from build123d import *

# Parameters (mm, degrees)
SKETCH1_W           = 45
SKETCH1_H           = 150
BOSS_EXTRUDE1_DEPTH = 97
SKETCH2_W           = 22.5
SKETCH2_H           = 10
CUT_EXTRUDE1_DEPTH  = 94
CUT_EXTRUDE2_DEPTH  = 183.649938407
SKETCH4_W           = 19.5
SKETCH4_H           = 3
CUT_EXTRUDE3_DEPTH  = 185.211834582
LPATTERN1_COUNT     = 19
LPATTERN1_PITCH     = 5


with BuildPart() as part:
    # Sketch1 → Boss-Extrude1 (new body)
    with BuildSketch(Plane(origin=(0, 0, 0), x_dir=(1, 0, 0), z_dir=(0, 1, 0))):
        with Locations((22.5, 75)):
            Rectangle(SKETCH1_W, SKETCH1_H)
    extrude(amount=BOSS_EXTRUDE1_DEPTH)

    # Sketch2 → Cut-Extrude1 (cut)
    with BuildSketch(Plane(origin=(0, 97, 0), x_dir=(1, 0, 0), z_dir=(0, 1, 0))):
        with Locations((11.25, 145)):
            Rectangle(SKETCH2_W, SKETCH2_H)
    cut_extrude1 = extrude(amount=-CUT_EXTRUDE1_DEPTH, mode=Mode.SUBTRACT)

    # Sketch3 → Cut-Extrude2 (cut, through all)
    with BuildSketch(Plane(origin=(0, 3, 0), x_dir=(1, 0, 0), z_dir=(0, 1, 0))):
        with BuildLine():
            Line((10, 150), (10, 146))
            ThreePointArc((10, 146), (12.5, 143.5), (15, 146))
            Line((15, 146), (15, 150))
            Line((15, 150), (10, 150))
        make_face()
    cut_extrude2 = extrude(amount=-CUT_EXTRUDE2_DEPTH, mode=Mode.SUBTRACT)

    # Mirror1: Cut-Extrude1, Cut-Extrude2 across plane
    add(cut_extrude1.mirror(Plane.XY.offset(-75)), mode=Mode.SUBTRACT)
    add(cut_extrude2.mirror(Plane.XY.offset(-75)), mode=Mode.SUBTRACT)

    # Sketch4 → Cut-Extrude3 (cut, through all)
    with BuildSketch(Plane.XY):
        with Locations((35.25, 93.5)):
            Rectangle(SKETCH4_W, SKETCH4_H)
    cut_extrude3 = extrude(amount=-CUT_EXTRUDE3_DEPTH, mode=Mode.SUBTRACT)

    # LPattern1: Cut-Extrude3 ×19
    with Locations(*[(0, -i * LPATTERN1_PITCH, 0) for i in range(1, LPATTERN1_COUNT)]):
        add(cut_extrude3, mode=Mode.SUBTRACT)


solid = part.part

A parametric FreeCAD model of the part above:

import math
import FreeCAD as App
import Part
import Sketcher
from FreeCAD import Vector
Q = App.Units.Quantity

doc = App.newDocument("Part")
body = doc.addObject("PartDesign::Body", "Body")

# Sketch on XZ plane
sketch1 = doc.addObject("Sketcher::SketchObject", "Sketch")
body.addObject(sketch1)
sketch1.AttachmentSupport = (doc.XZ_Plane, [""])
sketch1.MapMode = "FlatFace"
sketch1.addGeometry([
    Part.LineSegment(Vector(0, -150, 0), Vector(0, 0, 0)),
    Part.LineSegment(Vector(0, 0, 0), Vector(45, 0, 0)),
    Part.LineSegment(Vector(45, 0, 0), Vector(45, -150, 0)),
    Part.LineSegment(Vector(45, -150, 0), Vector(0, -150, 0)),
], False)
sketch1.addConstraint([
    Sketcher.Constraint("Coincident", 0, 2, 1, 1),
    Sketcher.Constraint("Coincident", 1, 2, 2, 1),
    Sketcher.Constraint("Coincident", 2, 2, 3, 1),
    Sketcher.Constraint("Coincident", 3, 2, 0, 1),
    Sketcher.Constraint("Vertical", 0),
    Sketcher.Constraint("Horizontal", 1),
    Sketcher.Constraint("Vertical", 2),
    Sketcher.Constraint("Horizontal", 3),
    Sketcher.Constraint("Coincident", 0, 2, -1, 1),
    Sketcher.Constraint("DistanceX", 1, 1, 1, 2, Q("45 mm")),
    Sketcher.Constraint("DistanceY", 0, 1, 0, 2, Q("150 mm")),
])
pad1 = doc.addObject("PartDesign::Pad", "Pad")
body.addObject(pad1)
pad1.Profile = sketch1
pad1.Length = 97
pad1.Reversed = True

# Sketch on XZ plane
sketch2 = doc.addObject("Sketcher::SketchObject", "Sketch001")
body.addObject(sketch2)
sketch2.AttachmentSupport = (doc.XZ_Plane, [""])
sketch2.MapMode = "FlatFace"
sketch2.AttachmentOffset = App.Placement(Vector(0, 0, -97), App.Rotation())
sketch2.addGeometry([
    Part.LineSegment(Vector(0, -150, 0), Vector(0, -140, 0)),
    Part.LineSegment(Vector(0, -140, 0), Vector(22, -140, 0)),
    Part.LineSegment(Vector(22, -140, 0), Vector(22, -150, 0)),
    Part.LineSegment(Vector(22, -150, 0), Vector(0, -150, 0)),
], False)
sketch2.addConstraint([
    Sketcher.Constraint("Coincident", 0, 2, 1, 1),
    Sketcher.Constraint("Coincident", 1, 2, 2, 1),
    Sketcher.Constraint("Coincident", 2, 2, 3, 1),
    Sketcher.Constraint("Coincident", 3, 2, 0, 1),
    Sketcher.Constraint("Vertical", 0),
    Sketcher.Constraint("Horizontal", 1),
    Sketcher.Constraint("Vertical", 2),
    Sketcher.Constraint("Horizontal", 3),
    Sketcher.Constraint("PointOnObject", 0, 2, -2),
    Sketcher.Constraint("DistanceY", 0, 1, 0, 2, Q("10 mm")),
    Sketcher.Constraint("DistanceX", 1, 1, 1, 2, Q("22.5 mm")),
    Sketcher.Constraint("DistanceY", 0, 2, -1, 1, Q("140 mm")),
])
pocket1 = doc.addObject("PartDesign::Pocket", "Pocket")
body.addObject(pocket1)
pocket1.Profile = sketch2
pocket1.Length = 94
pocket1.Reversed = True

# Sketch on XZ plane
sketch3 = doc.addObject("Sketcher::SketchObject", "Sketch002")
body.addObject(sketch3)
sketch3.AttachmentSupport = (doc.XZ_Plane, [""])
sketch3.MapMode = "FlatFace"
sketch3.AttachmentOffset = App.Placement(Vector(0, 0, -3), App.Rotation())
sketch3.addGeometry([
    Part.LineSegment(Vector(10, -150, 0), Vector(10, -146, 0)),
    Part.ArcOfCircle(Part.Circle(Vector(12.5, -146, 0), Vector(0, 0, 1), 2.5), math.radians(0), math.radians(180)),
    Part.LineSegment(Vector(15, -146, 0), Vector(15, -150, 0)),
    Part.LineSegment(Vector(15, -150, 0), Vector(10, -150, 0)),
], False)
sketch3.addConstraint([
    Sketcher.Constraint("Tangent", 0, 2, 1, 2),
    Sketcher.Constraint("Tangent", 1, 1, 2, 1),
    Sketcher.Constraint("Coincident", 2, 2, 3, 1),
    Sketcher.Constraint("Coincident", 3, 2, 0, 1),
    Sketcher.Constraint("Vertical", 0),
    Sketcher.Constraint("Vertical", 2),
    Sketcher.Constraint("Horizontal", 3),
    Sketcher.Constraint("Radius", 1, Q("2.5 mm")),
    Sketcher.Constraint("DistanceY", 0, 1, 0, 2, Q("4 mm")),
    Sketcher.Constraint("DistanceY", 1, 3, -1, 1, Q("146 mm")),
    Sketcher.Constraint("DistanceX", -1, 1, 0, 2, Q("10 mm")),
])
pocket2 = doc.addObject("PartDesign::Pocket", "Pocket001")
body.addObject(pocket2)
pocket2.Profile = sketch3
pocket2.Type = "ThroughAll"
pocket2.Reversed = True
doc.recompute()

datumplane = doc.addObject("PartDesign::Plane", "DatumPlane")
body.addObject(datumplane)
datumplane.AttachmentSupport = (doc.XY_Plane, [""])
datumplane.MapMode = "FlatFace"
datumplane.AttachmentOffset = App.Placement(Vector(0, 0, -75), App.Rotation())
mirrored = doc.addObject("PartDesign::Mirrored", "Mirrored")
body.addObject(mirrored)
mirrored.Originals = [pocket1, pocket2]
mirrored.MirrorPlane = (datumplane, [""])
body.Tip = mirrored

# Sketch on XY plane
sketch4 = doc.addObject("Sketcher::SketchObject", "Sketch003")
body.addObject(sketch4)
sketch4.AttachmentSupport = (doc.XY_Plane, [""])
sketch4.MapMode = "FlatFace"
sketch4.addGeometry([
    Part.LineSegment(Vector(25.5, 95, 0), Vector(25.5, 92, 0)),
    Part.LineSegment(Vector(25.5, 92, 0), Vector(45, 92, 0)),
    Part.LineSegment(Vector(45, 92, 0), Vector(45, 95, 0)),
    Part.LineSegment(Vector(45, 95, 0), Vector(25.5, 95, 0)),
], False)
sketch4.addConstraint([
    Sketcher.Constraint("Coincident", 0, 2, 1, 1),
    Sketcher.Constraint("Coincident", 1, 2, 2, 1),
    Sketcher.Constraint("Coincident", 2, 2, 3, 1),
    Sketcher.Constraint("Coincident", 3, 2, 0, 1),
    Sketcher.Constraint("Vertical", 0),
    Sketcher.Constraint("Horizontal", 1),
    Sketcher.Constraint("Vertical", 2),
    Sketcher.Constraint("Horizontal", 3),
    Sketcher.Constraint("DistanceY", 0, 2, 0, 1, Q("3 mm")),
    Sketcher.Constraint("DistanceX", 1, 1, 1, 2, Q("19.5 mm")),
    Sketcher.Constraint("DistanceY", -1, 1, 0, 2, Q("92 mm")),
    Sketcher.Constraint("DistanceX", -1, 1, 1, 2, Q("45 mm")),
])
pocket3 = doc.addObject("PartDesign::Pocket", "Pocket002")
body.addObject(pocket3)
pocket3.Profile = sketch4
pocket3.Type = "ThroughAll"
doc.recompute()

linearpattern = doc.addObject("PartDesign::LinearPattern", "LinearPattern")
body.addObject(linearpattern)
linearpattern.Originals = [pocket3]
linearpattern.Direction = (doc.Y_Axis, [""])
linearpattern.Mode = "offset"
linearpattern.Offset = 5
linearpattern.Occurrences = 19
linearpattern.Reversed = True
body.Tip = linearpattern

doc.recompute()
